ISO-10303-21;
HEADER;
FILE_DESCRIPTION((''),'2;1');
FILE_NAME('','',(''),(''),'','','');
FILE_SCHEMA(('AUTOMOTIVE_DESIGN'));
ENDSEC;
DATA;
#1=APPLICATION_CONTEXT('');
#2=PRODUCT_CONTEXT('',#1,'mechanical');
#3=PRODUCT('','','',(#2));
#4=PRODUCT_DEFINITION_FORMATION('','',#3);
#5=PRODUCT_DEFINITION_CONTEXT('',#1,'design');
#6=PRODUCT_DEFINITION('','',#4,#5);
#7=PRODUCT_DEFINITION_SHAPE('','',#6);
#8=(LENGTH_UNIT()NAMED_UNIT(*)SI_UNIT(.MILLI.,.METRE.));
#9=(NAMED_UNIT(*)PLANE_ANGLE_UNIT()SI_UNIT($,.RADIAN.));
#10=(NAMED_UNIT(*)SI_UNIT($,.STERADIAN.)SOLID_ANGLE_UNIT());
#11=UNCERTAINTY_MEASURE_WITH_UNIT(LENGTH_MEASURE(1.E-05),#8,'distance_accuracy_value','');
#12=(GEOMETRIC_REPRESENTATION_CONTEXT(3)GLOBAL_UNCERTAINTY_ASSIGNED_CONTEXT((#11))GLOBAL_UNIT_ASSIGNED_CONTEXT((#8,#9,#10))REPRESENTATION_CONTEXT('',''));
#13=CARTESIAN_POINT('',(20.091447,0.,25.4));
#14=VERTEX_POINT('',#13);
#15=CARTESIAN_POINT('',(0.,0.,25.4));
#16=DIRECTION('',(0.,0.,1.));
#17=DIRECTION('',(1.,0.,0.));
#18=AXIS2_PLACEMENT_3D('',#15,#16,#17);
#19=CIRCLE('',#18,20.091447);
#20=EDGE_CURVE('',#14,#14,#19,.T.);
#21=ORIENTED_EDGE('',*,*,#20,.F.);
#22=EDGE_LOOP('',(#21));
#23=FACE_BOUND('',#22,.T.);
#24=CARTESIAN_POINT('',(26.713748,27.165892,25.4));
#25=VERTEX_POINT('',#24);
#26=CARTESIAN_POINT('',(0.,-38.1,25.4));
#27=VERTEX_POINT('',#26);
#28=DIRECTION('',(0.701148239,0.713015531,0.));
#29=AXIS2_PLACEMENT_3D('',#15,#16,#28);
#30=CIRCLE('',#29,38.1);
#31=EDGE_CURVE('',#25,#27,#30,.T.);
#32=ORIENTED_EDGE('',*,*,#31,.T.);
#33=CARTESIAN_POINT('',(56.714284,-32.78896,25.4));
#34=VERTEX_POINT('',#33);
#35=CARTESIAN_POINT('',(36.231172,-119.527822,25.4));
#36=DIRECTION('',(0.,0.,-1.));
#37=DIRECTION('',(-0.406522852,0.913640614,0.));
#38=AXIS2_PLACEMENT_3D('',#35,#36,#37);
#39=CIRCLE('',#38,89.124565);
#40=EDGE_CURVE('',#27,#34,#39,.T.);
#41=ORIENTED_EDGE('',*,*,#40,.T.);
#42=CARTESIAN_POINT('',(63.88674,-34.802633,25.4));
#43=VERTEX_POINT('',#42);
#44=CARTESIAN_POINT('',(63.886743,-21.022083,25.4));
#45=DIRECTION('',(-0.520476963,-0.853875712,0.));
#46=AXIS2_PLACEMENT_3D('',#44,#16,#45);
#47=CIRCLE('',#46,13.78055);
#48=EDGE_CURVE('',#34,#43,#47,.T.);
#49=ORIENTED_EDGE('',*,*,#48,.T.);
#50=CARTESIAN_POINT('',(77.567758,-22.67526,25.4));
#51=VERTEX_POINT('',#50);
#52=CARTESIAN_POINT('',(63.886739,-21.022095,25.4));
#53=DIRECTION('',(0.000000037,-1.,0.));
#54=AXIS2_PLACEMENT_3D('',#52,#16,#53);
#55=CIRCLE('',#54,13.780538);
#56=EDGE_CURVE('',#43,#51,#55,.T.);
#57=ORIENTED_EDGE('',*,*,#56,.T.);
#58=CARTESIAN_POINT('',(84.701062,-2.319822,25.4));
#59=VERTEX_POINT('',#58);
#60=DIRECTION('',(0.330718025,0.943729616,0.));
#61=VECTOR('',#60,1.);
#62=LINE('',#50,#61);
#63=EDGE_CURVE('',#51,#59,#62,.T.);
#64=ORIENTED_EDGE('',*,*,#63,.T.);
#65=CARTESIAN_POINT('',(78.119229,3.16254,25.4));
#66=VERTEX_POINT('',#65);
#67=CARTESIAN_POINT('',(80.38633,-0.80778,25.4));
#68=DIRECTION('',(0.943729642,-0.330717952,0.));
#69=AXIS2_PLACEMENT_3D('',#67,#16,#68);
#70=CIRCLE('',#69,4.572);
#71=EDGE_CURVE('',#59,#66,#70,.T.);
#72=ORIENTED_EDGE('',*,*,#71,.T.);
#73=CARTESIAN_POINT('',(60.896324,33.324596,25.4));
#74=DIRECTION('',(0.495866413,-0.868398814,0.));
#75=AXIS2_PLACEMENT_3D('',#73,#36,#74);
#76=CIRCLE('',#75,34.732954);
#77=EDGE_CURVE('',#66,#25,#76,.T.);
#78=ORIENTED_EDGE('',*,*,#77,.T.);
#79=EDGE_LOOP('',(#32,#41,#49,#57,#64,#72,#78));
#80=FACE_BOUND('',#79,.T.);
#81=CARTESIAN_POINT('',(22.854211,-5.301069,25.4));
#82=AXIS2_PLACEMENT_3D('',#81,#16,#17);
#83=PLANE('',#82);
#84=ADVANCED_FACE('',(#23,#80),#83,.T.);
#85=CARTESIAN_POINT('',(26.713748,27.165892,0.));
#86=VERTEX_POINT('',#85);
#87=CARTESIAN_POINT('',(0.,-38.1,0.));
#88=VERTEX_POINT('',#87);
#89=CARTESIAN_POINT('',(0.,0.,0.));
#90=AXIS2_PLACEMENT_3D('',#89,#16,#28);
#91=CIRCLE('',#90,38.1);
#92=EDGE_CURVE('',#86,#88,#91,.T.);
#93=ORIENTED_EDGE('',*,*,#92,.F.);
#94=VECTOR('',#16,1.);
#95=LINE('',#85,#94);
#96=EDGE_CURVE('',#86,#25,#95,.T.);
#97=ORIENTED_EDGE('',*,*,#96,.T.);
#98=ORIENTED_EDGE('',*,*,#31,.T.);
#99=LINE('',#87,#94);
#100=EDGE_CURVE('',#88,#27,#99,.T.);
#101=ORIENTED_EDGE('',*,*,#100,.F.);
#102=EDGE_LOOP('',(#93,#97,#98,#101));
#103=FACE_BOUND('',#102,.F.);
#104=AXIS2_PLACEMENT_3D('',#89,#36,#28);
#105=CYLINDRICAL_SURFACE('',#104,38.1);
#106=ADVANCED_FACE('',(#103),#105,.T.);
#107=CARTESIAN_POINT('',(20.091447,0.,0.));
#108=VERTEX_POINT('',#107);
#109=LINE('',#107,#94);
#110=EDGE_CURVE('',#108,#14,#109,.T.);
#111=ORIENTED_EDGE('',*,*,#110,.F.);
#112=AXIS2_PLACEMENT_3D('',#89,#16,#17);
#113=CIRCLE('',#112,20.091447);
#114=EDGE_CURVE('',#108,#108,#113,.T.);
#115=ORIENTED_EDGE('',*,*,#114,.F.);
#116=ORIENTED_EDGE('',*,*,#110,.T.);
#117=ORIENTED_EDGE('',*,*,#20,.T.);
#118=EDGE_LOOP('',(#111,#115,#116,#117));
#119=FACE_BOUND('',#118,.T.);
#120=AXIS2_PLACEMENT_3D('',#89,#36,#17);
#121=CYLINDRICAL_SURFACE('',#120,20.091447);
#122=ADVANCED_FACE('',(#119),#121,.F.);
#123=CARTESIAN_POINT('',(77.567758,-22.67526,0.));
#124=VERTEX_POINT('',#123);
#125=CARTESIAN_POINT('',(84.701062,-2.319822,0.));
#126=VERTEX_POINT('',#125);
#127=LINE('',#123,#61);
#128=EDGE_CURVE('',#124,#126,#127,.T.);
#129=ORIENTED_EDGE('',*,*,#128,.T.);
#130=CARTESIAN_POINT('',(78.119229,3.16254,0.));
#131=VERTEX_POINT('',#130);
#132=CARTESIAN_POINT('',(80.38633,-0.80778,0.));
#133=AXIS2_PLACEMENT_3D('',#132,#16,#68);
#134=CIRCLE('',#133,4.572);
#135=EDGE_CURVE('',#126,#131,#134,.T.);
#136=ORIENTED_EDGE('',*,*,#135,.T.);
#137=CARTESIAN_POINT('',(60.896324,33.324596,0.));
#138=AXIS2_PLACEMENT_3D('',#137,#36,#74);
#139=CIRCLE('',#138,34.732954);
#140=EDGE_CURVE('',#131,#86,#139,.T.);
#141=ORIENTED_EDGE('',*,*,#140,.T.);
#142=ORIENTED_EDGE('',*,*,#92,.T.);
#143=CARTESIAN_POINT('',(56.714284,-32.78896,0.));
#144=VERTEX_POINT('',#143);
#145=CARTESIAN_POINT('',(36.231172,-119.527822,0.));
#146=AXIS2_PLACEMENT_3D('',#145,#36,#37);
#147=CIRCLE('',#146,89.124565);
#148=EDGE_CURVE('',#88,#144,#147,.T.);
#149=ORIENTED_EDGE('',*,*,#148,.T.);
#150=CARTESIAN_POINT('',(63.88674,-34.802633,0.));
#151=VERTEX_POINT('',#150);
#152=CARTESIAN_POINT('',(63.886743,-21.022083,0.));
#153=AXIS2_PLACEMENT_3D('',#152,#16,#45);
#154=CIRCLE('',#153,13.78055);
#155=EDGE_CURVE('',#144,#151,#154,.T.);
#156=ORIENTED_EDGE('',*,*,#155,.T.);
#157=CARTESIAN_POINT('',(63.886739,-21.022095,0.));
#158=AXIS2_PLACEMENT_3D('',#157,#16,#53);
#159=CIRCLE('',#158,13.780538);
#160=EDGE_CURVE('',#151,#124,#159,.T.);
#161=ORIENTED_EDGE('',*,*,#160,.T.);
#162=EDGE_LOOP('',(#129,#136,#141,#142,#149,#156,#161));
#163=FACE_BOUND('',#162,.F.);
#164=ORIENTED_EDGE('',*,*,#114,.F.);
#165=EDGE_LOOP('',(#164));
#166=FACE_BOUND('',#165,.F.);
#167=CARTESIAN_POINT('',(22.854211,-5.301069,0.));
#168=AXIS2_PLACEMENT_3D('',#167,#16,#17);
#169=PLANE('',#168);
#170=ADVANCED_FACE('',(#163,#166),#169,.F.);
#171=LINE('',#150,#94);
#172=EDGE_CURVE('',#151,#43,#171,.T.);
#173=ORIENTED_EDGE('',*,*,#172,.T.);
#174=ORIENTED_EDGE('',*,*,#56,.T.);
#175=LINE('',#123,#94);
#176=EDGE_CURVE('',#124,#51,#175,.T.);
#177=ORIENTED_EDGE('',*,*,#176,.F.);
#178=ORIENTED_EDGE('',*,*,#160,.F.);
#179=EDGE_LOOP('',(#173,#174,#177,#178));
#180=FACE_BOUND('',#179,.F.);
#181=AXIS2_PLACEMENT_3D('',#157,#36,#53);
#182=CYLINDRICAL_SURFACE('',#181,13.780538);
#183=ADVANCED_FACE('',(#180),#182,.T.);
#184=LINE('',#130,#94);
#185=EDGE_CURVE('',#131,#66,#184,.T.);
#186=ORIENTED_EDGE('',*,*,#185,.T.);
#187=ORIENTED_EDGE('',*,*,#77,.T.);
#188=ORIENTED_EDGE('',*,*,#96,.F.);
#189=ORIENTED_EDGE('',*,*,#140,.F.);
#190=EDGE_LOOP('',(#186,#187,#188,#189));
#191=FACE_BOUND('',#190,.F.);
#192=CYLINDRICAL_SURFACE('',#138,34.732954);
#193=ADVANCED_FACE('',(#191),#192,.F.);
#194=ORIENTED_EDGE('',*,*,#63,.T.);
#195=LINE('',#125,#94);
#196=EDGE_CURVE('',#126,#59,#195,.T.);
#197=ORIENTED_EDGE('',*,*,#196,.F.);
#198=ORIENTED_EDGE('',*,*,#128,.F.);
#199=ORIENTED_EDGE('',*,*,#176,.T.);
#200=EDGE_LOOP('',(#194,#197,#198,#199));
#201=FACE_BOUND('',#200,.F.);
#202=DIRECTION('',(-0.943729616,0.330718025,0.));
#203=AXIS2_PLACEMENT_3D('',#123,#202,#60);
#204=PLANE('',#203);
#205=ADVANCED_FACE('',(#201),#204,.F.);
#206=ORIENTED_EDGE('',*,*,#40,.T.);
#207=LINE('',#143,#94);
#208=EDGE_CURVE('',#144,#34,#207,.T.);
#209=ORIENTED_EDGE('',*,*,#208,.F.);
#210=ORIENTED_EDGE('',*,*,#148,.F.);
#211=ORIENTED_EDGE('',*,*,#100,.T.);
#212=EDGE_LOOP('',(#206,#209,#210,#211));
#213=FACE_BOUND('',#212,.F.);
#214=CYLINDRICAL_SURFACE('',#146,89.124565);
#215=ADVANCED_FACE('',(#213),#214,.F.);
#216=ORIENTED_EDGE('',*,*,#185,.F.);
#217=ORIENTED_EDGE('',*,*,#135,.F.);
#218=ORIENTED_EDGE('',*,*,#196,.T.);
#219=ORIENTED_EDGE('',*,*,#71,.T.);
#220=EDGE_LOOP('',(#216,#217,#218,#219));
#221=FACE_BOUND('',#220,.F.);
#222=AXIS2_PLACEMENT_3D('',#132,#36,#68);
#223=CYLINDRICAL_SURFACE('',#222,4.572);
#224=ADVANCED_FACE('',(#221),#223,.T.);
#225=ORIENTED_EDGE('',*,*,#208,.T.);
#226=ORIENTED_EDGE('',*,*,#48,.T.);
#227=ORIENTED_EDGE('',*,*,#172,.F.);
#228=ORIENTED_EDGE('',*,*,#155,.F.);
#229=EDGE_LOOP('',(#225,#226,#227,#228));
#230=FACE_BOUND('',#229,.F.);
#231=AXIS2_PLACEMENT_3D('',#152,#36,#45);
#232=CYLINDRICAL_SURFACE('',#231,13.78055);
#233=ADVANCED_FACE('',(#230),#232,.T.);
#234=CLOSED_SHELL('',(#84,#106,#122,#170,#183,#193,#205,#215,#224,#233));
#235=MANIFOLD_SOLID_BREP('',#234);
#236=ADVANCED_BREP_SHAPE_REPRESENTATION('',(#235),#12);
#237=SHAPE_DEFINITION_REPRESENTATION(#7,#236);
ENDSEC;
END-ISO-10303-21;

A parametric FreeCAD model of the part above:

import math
import FreeCAD as App
import Part
import Sketcher
from FreeCAD import Vector
Q = App.Units.Quantity

doc = App.newDocument("Part")
body = doc.addObject("PartDesign::Body", "Body")

# Sketch on XY plane
sketch1 = body.newObject("Sketcher::SketchObject", "Sketch")
sketch1.AttachmentSupport = (doc.getObject("XY_Plane"), [""])
sketch1.MapMode = "FlatFace"
sketch1.addGeometry(Part.ArcOfCircle(Part.Circle(Vector(60.896324, 33.324596, 0), Vector(0, 0, 1), 34.732954), math.radians(-169.786544), math.radians(-60.273101)), False)
sketch1.addGeometry(Part.ArcOfCircle(Part.Circle(Vector(0, 0, 0), Vector(0, 0, 1), 38.1), math.radians(45.4808), math.radians(270)), False)
sketch1.addGeometry(Part.ArcOfCircle(Part.Circle(Vector(36.231172, -119.527822, 0), Vector(0, 0, 1), 89.124565), math.radians(76.713192), math.radians(113.986592)), False)
sketch1.addGeometry(Part.ArcOfCircle(Part.Circle(Vector(63.886743, -21.022083, 0), Vector(0, 0, 1), 13.78055), math.radians(-121.364251), math.radians(-90.000011)), False)
sketch1.addGeometry(Part.ArcOfCircle(Part.Circle(Vector(63.886739, -21.022095, 0), Vector(0, 0, 1), 13.780538), math.radians(-89.999998), math.radians(-6.89001)), False)
sketch1.addGeometry(Part.LineSegment(Vector(77.567758, -22.67526, 0), Vector(84.701062, -2.319822, 0)), False)
sketch1.addGeometry(Part.ArcOfCircle(Part.Circle(Vector(80.38633, -0.80778, 0), Vector(0, 0, 1), 4.572), math.radians(-19.312358), math.radians(119.726896)), False)
sketch1.addGeometry(Part.Circle(Vector(0, 0, 0), Vector(0, 0, 1), 20.091447), False)
sketch1.addConstraint(Sketcher.Constraint("Coincident", 0, 1, 1, 1))
sketch1.addConstraint(Sketcher.Constraint("Coincident", 1, 2, 2, 2))
sketch1.addConstraint(Sketcher.Constraint("Coincident", 2, 1, 3, 1))
sketch1.addConstraint(Sketcher.Constraint("Coincident", 3, 2, 4, 1))
sketch1.addConstraint(Sketcher.Constraint("Coincident", 4, 2, 5, 1))
sketch1.addConstraint(Sketcher.Constraint("Coincident", 5, 2, 6, 1))
sketch1.addConstraint(Sketcher.Constraint("Coincident", 6, 2, 0, 2))
sketch1.addConstraint(Sketcher.Constraint("Coincident", 1, 3, -1, 1))
sketch1.addConstraint(Sketcher.Constraint("Coincident", 7, 3, -1, 1))
sketch1.addConstraint(Sketcher.Constraint("PointOnObject", 1, 2, -2))
sketch1.addConstraint(Sketcher.Constraint("Radius", 1, Q("1.5 in")))
sketch1.addConstraint(Sketcher.Constraint("Radius", 6, Q("0.18 in")))
sketch1.addConstraint(Sketcher.Constraint("Radius", 3, 13.78055))
sketch1.addConstraint(Sketcher.Constraint("Diameter", 7, 40.182894))
sketch1.addConstraint(Sketcher.Constraint("Radius", 0, 34.732954))
sketch1.addConstraint(Sketcher.Constraint("Radius", 2, 89.124565))
sketch1.addConstraint(Sketcher.Constraint("Radius", 4, 13.780538))
sketch1.addConstraint(Sketcher.Constraint("DistanceY", 2, 1, 4, 2, 10.1137))
sketch1.addConstraint(Sketcher.Constraint("DistanceX", 6, 2, 6, 3, 2.267101))
sketch1.addConstraint(Sketcher.Constraint("DistanceY", 4, 2, 6, 2, 25.8378))
sketch1.addConstraint(Sketcher.Constraint("Distance", 5, 21.569142))
sketch1.addConstraint(Sketcher.Constraint("DistanceX", -1, 1, 4, 3, 63.886739))
sketch1.addConstraint(Sketcher.Constraint("DistanceX", -1, 1, 6, 3, 80.38633))
sketch1.addConstraint(Sketcher.Constraint("DistanceY", 6, 3, -1, 1, 0.80778))
sketch1.addConstraint(Sketcher.Constraint("DistanceY", -1, 1, 0, 1, 27.165892))
sketch1.addConstraint(Sketcher.Constraint("DistanceX", -1, 1, 3, 2, 63.88674))
sketch1.addConstraint(Sketcher.Constraint("DistanceX", -1, 1, 5, 2, 84.701062))
sketch1.addConstraint(Sketcher.Constraint("DistanceX", 2, 3, 0, 3, 24.665151))
pad1 = body.newObject("PartDesign::Pad", "Pad")
pad1.Profile = sketch1
pad1.Length = Q("1 in")

doc.recompute()
